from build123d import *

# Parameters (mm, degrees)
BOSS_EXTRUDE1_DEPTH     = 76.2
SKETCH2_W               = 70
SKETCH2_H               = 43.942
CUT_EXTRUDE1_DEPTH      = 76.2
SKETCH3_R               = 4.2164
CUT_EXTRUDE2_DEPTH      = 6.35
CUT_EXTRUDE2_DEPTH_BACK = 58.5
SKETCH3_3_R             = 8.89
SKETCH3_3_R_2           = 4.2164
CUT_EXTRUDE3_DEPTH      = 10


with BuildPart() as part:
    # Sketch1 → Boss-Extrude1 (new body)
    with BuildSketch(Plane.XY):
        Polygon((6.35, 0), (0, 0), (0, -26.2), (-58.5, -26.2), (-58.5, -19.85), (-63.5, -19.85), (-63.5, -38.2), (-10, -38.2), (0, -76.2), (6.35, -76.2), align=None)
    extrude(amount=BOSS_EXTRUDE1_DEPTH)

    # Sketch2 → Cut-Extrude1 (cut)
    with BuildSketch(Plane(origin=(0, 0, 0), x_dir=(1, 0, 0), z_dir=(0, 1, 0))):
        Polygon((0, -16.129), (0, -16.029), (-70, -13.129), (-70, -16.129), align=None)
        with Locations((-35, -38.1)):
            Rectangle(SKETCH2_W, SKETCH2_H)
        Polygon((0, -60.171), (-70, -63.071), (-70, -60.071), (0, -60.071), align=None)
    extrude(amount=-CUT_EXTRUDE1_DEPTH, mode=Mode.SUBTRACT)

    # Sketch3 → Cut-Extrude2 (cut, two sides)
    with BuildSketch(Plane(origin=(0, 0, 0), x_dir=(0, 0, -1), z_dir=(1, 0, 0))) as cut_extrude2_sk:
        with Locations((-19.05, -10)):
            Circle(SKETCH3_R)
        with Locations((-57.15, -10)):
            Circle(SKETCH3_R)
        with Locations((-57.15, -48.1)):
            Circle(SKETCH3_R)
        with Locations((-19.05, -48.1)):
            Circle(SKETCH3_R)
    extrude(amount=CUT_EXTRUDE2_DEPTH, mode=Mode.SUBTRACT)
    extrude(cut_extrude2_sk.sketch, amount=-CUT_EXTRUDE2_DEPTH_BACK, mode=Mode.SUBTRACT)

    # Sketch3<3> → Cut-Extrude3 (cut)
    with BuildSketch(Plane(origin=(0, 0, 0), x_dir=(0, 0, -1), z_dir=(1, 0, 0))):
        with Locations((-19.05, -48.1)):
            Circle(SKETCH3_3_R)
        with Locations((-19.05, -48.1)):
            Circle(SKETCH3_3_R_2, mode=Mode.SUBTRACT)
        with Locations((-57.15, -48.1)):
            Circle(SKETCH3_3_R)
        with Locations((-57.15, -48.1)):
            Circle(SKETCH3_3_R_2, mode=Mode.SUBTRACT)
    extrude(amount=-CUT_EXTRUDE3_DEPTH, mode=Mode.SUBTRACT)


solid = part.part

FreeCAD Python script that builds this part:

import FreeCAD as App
import Part
import Sketcher

doc = App.newDocument("Part")
body = doc.addObject("PartDesign::Body", "Body")

# Sketch on XY plane
sketch1 = doc.addObject("Sketcher::SketchObject", "Sketch")
body.addObject(sketch1)
sketch1.AttachmentSupport = (doc.XY_Plane, [""])
sketch1.MapMode = "FlatFace"
sketch1.addGeometry([
    Part.LineSegment(App.Vector(6.35, 0, 0), App.Vector(0, 0, 0)),  # 0
    Part.LineSegment(App.Vector(0, 0, 0), App.Vector(0, -26.2, 0)),  # 1
    Part.LineSegment(App.Vector(0, -26.2, 0), App.Vector(-58.5, -26.2, 0)),  # 2
    Part.LineSegment(App.Vector(-58.5, -26.2, 0), App.Vector(-58.5, -19.85, 0)),  # 3
    Part.LineSegment(App.Vector(-58.5, -19.85, 0), App.Vector(-63.5, -19.85, 0)),  # 4
    Part.LineSegment(App.Vector(-63.5, -19.85, 0), App.Vector(-63.5, -38.2, 0)),  # 5
    Part.LineSegment(App.Vector(-63.5, -38.2, 0), App.Vector(-10, -38.2, 0)),  # 6
    Part.LineSegment(App.Vector(-10, -38.2, 0), App.Vector(0, -76.2, 0)),  # 7
    Part.LineSegment(App.Vector(0, -76.2, 0), App.Vector(6.35, -76.2, 0)),  # 8
    Part.LineSegment(App.Vector(6.35, -76.2, 0), App.Vector(6.35, 0, 0)),  # 9
], False)
sketch1.addConstraint([
    Sketcher.Constraint("Coincident", 0, 2, 1, 1),
    Sketcher.Constraint("Coincident", 1, 2, 2, 1),
    Sketcher.Constraint("Coincident", 2, 2, 3, 1),
    Sketcher.Constraint("Coincident", 3, 2, 4, 1),
    Sketcher.Constraint("Coincident", 4, 2, 5, 1),
    Sketcher.Constraint("Coincident", 5, 2, 6, 1),
    Sketcher.Constraint("Coincident", 6, 2, 7, 1),
    Sketcher.Constraint("Coincident", 7, 2, 8, 1),
    Sketcher.Constraint("Coincident", 8, 2, 9, 1),
    Sketcher.Constraint("Coincident", 9, 2, 0, 1),
    Sketcher.Constraint("Horizontal", 0),
    Sketcher.Constraint("Vertical", 1),
    Sketcher.Constraint("Horizontal", 2),
    Sketcher.Constraint("Vertical", 3),
    Sketcher.Constraint("Horizontal", 4),
    Sketcher.Constraint("Vertical", 5),
    Sketcher.Constraint("Horizontal", 6),
    Sketcher.Constraint("Horizontal", 8),
    Sketcher.Constraint("Vertical", 9),
    Sketcher.Constraint("Coincident", 0, 2, -1, 1),
    Sketcher.Constraint("PointOnObject", 7, 2, -2),
    Sketcher.Constraint("Equal", 8, 3),
    Sketcher.Constraint("DistanceX", 4, 2, 4, 1, 5.0),
    Sketcher.Constraint("DistanceX", 2, 2, 2, 1, 58.5),
    Sketcher.Constraint("DistanceX", 6, 1, 6, 2, 53.5),
    Sketcher.Constraint("DistanceY", 1, 2, 1, 1, 26.2),
    Sketcher.Constraint("DistanceY", 9, 1, 9, 2, 76.2),
    Sketcher.Constraint("DistanceY", 5, 2, 2, 2, 12.0),
    Sketcher.Constraint("DistanceX", 0, 2, 0, 1, 6.35),
])
pad1 = doc.addObject("PartDesign::Pad", "Pad")
body.addObject(pad1)
pad1.Profile = sketch1
pad1.Length = 76.2

# Sketch on XZ plane
sketch2 = doc.addObject("Sketcher::SketchObject", "Sketch001")
body.addObject(sketch2)
sketch2.AttachmentSupport = (doc.XZ_Plane, [""])
sketch2.MapMode = "FlatFace"
sketch2.addGeometry([
    Part.LineSegment(App.Vector(0, 16.029, 0), App.Vector(-70, 13.129, 0)),
    Part.LineSegment(App.Vector(-70, 13.129, 0), App.Vector(-70, 63.071, 0)),
    Part.LineSegment(App.Vector(-70, 63.071, 0), App.Vector(0, 60.171, 0)),
    Part.LineSegment(App.Vector(0, 60.171, 0), App.Vector(0, 16.029, 0)),
], False)
sketch2.addConstraint([
    Sketcher.Constraint("Coincident", 0, 2, 1, 1),
    Sketcher.Constraint("Coincident", 1, 2, 2, 1),
    Sketcher.Constraint("Coincident", 2, 2, 3, 1),
    Sketcher.Constraint("Coincident", 3, 2, 0, 1),
    Sketcher.Constraint("Vertical", 1),
    Sketcher.Constraint("Vertical", 3),
    Sketcher.Constraint("PointOnObject", 2, 2, -2),
    Sketcher.Constraint("Equal", 0, 2),
    Sketcher.Constraint("DistanceX", 0, 2, -1, 1, 70.0),
    Sketcher.Constraint("DistanceY", 2, 2, 1, 2, 2.9),
    Sketcher.Constraint("DistanceY", 1, 1, 1, 2, 49.942),
    Sketcher.Constraint("DistanceY", -1, 1, 0, 2, 13.129),
])
pocket1 = doc.addObject("PartDesign::Pocket", "Pocket")
body.addObject(pocket1)
pocket1.Profile = sketch2
pocket1.Length = 76.2
pocket1.Reversed = True

# Sketch on YZ plane
sketch3 = doc.addObject("Sketcher::SketchObject", "Sketch002")
body.addObject(sketch3)
sketch3.AttachmentSupport = (doc.YZ_Plane, [""])
sketch3.MapMode = "FlatFace"
sketch3.addGeometry([
    Part.Circle(App.Vector(-10, 19.05, 0), App.Vector(0, 0, 1), 4.2164),
    Part.Circle(App.Vector(-10, 57.15, 0), App.Vector(0, 0, 1), 4.2164),
    Part.Circle(App.Vector(-48.1, 57.15, 0), App.Vector(0, 0, 1), 4.2164),
    Part.Circle(App.Vector(-48.1, 19.05, 0), App.Vector(0, 0, 1), 4.2164),
], False)
sketch3.addConstraint([
    Sketcher.Constraint("Equal", 0, 1),
    Sketcher.Constraint("Equal", 1, 2),
    Sketcher.Constraint("Equal", 2, 3),
    Sketcher.Constraint("Horizontal", 1, 3, 2, 3),
    Sketcher.Constraint("Horizontal", 0, 3, 3, 3),
    Sketcher.Constraint("Vertical", 0, 3, 1, 3),
    Sketcher.Constraint("Vertical", 2, 3, 3, 3),
    Sketcher.Constraint("DistanceX", 0, 3, -1, 1, 10.0),
    Sketcher.Constraint("Diameter", 0, 8.4328),
    Sketcher.Constraint("DistanceX", 2, 3, -1, 1, 48.1),
    Sketcher.Constraint("DistanceY", 0, 3, 1, 3, 38.1),
    Sketcher.Constraint("DistanceY", -1, 1, 0, 3, 19.05),
])
pocket2 = doc.addObject("PartDesign::Pocket", "Pocket001")
body.addObject(pocket2)
pocket2.Profile = sketch3
pocket2.Type = "ThroughAll"
pocket2.Midplane = True

# Sketch on YZ plane
sketch4 = doc.addObject("Sketcher::SketchObject", "Sketch003")
body.addObject(sketch4)
sketch4.AttachmentSupport = (doc.YZ_Plane, [""])
sketch4.MapMode = "FlatFace"
sketch4.addGeometry([
    Part.Circle(App.Vector(-48.1, 19.05, 0), App.Vector(0, 0, 1), 8.89),
    Part.Circle(App.Vector(-48.1, 19.05, 0), App.Vector(0, 0, 1), 4.2164),
    Part.Circle(App.Vector(-48.1, 57.15, 0), App.Vector(0, 0, 1), 8.89),
    Part.Circle(App.Vector(-48.1, 57.15, 0), App.Vector(0, 0, 1), 4.2164),
], False)
sketch4.addConstraint([
    Sketcher.Constraint("Coincident", 1, 3, 0, 3),
    Sketcher.Constraint("Coincident", 3, 3, 2, 3),
    Sketcher.Constraint("Equal", 0, 2),
    Sketcher.Constraint("Equal", 1, 3),
    Sketcher.Constraint("Vertical", 1, 3, 2, 3),
    Sketcher.Constraint("Diameter", 0, 17.78),
    Sketcher.Constraint("Diameter", 1, 8.4328),
    Sketcher.Constraint("DistanceX", 0, 3, -1, 1, 48.1),
    Sketcher.Constraint("DistanceY", 0, 3, 2, 3, 38.1),
    Sketcher.Constraint("DistanceY", -1, 1, 0, 3, 19.05),
])
pocket3 = doc.addObject("PartDesign::Pocket", "Pocket002")
body.addObject(pocket3)
pocket3.Profile = sketch4
pocket3.Length = 10

doc.recompute()
